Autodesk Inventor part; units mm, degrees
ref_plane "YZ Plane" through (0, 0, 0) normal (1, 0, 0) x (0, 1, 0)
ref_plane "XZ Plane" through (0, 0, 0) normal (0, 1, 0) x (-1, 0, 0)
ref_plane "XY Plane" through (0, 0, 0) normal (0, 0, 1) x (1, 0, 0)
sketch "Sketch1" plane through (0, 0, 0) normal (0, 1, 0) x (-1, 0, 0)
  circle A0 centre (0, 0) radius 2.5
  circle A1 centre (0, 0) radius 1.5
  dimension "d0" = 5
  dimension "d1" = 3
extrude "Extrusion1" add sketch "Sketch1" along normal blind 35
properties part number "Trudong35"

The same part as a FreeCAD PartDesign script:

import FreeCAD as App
import Part
import Sketcher

doc = App.newDocument("Part")
body = doc.addObject("PartDesign::Body", "Body")

# Sketch on XZ plane
sketch1 = body.newObject("Sketcher::SketchObject", "Sketch")
sketch1.AttachmentSupport = (doc.getObject("XZ_Plane"), [""])
sketch1.MapMode = "FlatFace"
sketch1.addGeometry([
    Part.Circle(App.Vector(0, 0, 0), App.Vector(0, 0, 1), 2.5),
    Part.Circle(App.Vector(0, 0, 0), App.Vector(0, 0, 1), 1.5),
], False)
sketch1.addConstraint([
    Sketcher.Constraint("Coincident", 0, 3, -1, 1),
    Sketcher.Constraint("Coincident", 1, 3, -1, 1),
    Sketcher.Constraint("Diameter", 0, 5.0),
    Sketcher.Constraint("Diameter", 1, 3.0),
])
pad1 = body.newObject("PartDesign::Pad", "Pad")
pad1.Profile = sketch1
pad1.Length = 35
pad1.Reversed = True

doc.recompute()
